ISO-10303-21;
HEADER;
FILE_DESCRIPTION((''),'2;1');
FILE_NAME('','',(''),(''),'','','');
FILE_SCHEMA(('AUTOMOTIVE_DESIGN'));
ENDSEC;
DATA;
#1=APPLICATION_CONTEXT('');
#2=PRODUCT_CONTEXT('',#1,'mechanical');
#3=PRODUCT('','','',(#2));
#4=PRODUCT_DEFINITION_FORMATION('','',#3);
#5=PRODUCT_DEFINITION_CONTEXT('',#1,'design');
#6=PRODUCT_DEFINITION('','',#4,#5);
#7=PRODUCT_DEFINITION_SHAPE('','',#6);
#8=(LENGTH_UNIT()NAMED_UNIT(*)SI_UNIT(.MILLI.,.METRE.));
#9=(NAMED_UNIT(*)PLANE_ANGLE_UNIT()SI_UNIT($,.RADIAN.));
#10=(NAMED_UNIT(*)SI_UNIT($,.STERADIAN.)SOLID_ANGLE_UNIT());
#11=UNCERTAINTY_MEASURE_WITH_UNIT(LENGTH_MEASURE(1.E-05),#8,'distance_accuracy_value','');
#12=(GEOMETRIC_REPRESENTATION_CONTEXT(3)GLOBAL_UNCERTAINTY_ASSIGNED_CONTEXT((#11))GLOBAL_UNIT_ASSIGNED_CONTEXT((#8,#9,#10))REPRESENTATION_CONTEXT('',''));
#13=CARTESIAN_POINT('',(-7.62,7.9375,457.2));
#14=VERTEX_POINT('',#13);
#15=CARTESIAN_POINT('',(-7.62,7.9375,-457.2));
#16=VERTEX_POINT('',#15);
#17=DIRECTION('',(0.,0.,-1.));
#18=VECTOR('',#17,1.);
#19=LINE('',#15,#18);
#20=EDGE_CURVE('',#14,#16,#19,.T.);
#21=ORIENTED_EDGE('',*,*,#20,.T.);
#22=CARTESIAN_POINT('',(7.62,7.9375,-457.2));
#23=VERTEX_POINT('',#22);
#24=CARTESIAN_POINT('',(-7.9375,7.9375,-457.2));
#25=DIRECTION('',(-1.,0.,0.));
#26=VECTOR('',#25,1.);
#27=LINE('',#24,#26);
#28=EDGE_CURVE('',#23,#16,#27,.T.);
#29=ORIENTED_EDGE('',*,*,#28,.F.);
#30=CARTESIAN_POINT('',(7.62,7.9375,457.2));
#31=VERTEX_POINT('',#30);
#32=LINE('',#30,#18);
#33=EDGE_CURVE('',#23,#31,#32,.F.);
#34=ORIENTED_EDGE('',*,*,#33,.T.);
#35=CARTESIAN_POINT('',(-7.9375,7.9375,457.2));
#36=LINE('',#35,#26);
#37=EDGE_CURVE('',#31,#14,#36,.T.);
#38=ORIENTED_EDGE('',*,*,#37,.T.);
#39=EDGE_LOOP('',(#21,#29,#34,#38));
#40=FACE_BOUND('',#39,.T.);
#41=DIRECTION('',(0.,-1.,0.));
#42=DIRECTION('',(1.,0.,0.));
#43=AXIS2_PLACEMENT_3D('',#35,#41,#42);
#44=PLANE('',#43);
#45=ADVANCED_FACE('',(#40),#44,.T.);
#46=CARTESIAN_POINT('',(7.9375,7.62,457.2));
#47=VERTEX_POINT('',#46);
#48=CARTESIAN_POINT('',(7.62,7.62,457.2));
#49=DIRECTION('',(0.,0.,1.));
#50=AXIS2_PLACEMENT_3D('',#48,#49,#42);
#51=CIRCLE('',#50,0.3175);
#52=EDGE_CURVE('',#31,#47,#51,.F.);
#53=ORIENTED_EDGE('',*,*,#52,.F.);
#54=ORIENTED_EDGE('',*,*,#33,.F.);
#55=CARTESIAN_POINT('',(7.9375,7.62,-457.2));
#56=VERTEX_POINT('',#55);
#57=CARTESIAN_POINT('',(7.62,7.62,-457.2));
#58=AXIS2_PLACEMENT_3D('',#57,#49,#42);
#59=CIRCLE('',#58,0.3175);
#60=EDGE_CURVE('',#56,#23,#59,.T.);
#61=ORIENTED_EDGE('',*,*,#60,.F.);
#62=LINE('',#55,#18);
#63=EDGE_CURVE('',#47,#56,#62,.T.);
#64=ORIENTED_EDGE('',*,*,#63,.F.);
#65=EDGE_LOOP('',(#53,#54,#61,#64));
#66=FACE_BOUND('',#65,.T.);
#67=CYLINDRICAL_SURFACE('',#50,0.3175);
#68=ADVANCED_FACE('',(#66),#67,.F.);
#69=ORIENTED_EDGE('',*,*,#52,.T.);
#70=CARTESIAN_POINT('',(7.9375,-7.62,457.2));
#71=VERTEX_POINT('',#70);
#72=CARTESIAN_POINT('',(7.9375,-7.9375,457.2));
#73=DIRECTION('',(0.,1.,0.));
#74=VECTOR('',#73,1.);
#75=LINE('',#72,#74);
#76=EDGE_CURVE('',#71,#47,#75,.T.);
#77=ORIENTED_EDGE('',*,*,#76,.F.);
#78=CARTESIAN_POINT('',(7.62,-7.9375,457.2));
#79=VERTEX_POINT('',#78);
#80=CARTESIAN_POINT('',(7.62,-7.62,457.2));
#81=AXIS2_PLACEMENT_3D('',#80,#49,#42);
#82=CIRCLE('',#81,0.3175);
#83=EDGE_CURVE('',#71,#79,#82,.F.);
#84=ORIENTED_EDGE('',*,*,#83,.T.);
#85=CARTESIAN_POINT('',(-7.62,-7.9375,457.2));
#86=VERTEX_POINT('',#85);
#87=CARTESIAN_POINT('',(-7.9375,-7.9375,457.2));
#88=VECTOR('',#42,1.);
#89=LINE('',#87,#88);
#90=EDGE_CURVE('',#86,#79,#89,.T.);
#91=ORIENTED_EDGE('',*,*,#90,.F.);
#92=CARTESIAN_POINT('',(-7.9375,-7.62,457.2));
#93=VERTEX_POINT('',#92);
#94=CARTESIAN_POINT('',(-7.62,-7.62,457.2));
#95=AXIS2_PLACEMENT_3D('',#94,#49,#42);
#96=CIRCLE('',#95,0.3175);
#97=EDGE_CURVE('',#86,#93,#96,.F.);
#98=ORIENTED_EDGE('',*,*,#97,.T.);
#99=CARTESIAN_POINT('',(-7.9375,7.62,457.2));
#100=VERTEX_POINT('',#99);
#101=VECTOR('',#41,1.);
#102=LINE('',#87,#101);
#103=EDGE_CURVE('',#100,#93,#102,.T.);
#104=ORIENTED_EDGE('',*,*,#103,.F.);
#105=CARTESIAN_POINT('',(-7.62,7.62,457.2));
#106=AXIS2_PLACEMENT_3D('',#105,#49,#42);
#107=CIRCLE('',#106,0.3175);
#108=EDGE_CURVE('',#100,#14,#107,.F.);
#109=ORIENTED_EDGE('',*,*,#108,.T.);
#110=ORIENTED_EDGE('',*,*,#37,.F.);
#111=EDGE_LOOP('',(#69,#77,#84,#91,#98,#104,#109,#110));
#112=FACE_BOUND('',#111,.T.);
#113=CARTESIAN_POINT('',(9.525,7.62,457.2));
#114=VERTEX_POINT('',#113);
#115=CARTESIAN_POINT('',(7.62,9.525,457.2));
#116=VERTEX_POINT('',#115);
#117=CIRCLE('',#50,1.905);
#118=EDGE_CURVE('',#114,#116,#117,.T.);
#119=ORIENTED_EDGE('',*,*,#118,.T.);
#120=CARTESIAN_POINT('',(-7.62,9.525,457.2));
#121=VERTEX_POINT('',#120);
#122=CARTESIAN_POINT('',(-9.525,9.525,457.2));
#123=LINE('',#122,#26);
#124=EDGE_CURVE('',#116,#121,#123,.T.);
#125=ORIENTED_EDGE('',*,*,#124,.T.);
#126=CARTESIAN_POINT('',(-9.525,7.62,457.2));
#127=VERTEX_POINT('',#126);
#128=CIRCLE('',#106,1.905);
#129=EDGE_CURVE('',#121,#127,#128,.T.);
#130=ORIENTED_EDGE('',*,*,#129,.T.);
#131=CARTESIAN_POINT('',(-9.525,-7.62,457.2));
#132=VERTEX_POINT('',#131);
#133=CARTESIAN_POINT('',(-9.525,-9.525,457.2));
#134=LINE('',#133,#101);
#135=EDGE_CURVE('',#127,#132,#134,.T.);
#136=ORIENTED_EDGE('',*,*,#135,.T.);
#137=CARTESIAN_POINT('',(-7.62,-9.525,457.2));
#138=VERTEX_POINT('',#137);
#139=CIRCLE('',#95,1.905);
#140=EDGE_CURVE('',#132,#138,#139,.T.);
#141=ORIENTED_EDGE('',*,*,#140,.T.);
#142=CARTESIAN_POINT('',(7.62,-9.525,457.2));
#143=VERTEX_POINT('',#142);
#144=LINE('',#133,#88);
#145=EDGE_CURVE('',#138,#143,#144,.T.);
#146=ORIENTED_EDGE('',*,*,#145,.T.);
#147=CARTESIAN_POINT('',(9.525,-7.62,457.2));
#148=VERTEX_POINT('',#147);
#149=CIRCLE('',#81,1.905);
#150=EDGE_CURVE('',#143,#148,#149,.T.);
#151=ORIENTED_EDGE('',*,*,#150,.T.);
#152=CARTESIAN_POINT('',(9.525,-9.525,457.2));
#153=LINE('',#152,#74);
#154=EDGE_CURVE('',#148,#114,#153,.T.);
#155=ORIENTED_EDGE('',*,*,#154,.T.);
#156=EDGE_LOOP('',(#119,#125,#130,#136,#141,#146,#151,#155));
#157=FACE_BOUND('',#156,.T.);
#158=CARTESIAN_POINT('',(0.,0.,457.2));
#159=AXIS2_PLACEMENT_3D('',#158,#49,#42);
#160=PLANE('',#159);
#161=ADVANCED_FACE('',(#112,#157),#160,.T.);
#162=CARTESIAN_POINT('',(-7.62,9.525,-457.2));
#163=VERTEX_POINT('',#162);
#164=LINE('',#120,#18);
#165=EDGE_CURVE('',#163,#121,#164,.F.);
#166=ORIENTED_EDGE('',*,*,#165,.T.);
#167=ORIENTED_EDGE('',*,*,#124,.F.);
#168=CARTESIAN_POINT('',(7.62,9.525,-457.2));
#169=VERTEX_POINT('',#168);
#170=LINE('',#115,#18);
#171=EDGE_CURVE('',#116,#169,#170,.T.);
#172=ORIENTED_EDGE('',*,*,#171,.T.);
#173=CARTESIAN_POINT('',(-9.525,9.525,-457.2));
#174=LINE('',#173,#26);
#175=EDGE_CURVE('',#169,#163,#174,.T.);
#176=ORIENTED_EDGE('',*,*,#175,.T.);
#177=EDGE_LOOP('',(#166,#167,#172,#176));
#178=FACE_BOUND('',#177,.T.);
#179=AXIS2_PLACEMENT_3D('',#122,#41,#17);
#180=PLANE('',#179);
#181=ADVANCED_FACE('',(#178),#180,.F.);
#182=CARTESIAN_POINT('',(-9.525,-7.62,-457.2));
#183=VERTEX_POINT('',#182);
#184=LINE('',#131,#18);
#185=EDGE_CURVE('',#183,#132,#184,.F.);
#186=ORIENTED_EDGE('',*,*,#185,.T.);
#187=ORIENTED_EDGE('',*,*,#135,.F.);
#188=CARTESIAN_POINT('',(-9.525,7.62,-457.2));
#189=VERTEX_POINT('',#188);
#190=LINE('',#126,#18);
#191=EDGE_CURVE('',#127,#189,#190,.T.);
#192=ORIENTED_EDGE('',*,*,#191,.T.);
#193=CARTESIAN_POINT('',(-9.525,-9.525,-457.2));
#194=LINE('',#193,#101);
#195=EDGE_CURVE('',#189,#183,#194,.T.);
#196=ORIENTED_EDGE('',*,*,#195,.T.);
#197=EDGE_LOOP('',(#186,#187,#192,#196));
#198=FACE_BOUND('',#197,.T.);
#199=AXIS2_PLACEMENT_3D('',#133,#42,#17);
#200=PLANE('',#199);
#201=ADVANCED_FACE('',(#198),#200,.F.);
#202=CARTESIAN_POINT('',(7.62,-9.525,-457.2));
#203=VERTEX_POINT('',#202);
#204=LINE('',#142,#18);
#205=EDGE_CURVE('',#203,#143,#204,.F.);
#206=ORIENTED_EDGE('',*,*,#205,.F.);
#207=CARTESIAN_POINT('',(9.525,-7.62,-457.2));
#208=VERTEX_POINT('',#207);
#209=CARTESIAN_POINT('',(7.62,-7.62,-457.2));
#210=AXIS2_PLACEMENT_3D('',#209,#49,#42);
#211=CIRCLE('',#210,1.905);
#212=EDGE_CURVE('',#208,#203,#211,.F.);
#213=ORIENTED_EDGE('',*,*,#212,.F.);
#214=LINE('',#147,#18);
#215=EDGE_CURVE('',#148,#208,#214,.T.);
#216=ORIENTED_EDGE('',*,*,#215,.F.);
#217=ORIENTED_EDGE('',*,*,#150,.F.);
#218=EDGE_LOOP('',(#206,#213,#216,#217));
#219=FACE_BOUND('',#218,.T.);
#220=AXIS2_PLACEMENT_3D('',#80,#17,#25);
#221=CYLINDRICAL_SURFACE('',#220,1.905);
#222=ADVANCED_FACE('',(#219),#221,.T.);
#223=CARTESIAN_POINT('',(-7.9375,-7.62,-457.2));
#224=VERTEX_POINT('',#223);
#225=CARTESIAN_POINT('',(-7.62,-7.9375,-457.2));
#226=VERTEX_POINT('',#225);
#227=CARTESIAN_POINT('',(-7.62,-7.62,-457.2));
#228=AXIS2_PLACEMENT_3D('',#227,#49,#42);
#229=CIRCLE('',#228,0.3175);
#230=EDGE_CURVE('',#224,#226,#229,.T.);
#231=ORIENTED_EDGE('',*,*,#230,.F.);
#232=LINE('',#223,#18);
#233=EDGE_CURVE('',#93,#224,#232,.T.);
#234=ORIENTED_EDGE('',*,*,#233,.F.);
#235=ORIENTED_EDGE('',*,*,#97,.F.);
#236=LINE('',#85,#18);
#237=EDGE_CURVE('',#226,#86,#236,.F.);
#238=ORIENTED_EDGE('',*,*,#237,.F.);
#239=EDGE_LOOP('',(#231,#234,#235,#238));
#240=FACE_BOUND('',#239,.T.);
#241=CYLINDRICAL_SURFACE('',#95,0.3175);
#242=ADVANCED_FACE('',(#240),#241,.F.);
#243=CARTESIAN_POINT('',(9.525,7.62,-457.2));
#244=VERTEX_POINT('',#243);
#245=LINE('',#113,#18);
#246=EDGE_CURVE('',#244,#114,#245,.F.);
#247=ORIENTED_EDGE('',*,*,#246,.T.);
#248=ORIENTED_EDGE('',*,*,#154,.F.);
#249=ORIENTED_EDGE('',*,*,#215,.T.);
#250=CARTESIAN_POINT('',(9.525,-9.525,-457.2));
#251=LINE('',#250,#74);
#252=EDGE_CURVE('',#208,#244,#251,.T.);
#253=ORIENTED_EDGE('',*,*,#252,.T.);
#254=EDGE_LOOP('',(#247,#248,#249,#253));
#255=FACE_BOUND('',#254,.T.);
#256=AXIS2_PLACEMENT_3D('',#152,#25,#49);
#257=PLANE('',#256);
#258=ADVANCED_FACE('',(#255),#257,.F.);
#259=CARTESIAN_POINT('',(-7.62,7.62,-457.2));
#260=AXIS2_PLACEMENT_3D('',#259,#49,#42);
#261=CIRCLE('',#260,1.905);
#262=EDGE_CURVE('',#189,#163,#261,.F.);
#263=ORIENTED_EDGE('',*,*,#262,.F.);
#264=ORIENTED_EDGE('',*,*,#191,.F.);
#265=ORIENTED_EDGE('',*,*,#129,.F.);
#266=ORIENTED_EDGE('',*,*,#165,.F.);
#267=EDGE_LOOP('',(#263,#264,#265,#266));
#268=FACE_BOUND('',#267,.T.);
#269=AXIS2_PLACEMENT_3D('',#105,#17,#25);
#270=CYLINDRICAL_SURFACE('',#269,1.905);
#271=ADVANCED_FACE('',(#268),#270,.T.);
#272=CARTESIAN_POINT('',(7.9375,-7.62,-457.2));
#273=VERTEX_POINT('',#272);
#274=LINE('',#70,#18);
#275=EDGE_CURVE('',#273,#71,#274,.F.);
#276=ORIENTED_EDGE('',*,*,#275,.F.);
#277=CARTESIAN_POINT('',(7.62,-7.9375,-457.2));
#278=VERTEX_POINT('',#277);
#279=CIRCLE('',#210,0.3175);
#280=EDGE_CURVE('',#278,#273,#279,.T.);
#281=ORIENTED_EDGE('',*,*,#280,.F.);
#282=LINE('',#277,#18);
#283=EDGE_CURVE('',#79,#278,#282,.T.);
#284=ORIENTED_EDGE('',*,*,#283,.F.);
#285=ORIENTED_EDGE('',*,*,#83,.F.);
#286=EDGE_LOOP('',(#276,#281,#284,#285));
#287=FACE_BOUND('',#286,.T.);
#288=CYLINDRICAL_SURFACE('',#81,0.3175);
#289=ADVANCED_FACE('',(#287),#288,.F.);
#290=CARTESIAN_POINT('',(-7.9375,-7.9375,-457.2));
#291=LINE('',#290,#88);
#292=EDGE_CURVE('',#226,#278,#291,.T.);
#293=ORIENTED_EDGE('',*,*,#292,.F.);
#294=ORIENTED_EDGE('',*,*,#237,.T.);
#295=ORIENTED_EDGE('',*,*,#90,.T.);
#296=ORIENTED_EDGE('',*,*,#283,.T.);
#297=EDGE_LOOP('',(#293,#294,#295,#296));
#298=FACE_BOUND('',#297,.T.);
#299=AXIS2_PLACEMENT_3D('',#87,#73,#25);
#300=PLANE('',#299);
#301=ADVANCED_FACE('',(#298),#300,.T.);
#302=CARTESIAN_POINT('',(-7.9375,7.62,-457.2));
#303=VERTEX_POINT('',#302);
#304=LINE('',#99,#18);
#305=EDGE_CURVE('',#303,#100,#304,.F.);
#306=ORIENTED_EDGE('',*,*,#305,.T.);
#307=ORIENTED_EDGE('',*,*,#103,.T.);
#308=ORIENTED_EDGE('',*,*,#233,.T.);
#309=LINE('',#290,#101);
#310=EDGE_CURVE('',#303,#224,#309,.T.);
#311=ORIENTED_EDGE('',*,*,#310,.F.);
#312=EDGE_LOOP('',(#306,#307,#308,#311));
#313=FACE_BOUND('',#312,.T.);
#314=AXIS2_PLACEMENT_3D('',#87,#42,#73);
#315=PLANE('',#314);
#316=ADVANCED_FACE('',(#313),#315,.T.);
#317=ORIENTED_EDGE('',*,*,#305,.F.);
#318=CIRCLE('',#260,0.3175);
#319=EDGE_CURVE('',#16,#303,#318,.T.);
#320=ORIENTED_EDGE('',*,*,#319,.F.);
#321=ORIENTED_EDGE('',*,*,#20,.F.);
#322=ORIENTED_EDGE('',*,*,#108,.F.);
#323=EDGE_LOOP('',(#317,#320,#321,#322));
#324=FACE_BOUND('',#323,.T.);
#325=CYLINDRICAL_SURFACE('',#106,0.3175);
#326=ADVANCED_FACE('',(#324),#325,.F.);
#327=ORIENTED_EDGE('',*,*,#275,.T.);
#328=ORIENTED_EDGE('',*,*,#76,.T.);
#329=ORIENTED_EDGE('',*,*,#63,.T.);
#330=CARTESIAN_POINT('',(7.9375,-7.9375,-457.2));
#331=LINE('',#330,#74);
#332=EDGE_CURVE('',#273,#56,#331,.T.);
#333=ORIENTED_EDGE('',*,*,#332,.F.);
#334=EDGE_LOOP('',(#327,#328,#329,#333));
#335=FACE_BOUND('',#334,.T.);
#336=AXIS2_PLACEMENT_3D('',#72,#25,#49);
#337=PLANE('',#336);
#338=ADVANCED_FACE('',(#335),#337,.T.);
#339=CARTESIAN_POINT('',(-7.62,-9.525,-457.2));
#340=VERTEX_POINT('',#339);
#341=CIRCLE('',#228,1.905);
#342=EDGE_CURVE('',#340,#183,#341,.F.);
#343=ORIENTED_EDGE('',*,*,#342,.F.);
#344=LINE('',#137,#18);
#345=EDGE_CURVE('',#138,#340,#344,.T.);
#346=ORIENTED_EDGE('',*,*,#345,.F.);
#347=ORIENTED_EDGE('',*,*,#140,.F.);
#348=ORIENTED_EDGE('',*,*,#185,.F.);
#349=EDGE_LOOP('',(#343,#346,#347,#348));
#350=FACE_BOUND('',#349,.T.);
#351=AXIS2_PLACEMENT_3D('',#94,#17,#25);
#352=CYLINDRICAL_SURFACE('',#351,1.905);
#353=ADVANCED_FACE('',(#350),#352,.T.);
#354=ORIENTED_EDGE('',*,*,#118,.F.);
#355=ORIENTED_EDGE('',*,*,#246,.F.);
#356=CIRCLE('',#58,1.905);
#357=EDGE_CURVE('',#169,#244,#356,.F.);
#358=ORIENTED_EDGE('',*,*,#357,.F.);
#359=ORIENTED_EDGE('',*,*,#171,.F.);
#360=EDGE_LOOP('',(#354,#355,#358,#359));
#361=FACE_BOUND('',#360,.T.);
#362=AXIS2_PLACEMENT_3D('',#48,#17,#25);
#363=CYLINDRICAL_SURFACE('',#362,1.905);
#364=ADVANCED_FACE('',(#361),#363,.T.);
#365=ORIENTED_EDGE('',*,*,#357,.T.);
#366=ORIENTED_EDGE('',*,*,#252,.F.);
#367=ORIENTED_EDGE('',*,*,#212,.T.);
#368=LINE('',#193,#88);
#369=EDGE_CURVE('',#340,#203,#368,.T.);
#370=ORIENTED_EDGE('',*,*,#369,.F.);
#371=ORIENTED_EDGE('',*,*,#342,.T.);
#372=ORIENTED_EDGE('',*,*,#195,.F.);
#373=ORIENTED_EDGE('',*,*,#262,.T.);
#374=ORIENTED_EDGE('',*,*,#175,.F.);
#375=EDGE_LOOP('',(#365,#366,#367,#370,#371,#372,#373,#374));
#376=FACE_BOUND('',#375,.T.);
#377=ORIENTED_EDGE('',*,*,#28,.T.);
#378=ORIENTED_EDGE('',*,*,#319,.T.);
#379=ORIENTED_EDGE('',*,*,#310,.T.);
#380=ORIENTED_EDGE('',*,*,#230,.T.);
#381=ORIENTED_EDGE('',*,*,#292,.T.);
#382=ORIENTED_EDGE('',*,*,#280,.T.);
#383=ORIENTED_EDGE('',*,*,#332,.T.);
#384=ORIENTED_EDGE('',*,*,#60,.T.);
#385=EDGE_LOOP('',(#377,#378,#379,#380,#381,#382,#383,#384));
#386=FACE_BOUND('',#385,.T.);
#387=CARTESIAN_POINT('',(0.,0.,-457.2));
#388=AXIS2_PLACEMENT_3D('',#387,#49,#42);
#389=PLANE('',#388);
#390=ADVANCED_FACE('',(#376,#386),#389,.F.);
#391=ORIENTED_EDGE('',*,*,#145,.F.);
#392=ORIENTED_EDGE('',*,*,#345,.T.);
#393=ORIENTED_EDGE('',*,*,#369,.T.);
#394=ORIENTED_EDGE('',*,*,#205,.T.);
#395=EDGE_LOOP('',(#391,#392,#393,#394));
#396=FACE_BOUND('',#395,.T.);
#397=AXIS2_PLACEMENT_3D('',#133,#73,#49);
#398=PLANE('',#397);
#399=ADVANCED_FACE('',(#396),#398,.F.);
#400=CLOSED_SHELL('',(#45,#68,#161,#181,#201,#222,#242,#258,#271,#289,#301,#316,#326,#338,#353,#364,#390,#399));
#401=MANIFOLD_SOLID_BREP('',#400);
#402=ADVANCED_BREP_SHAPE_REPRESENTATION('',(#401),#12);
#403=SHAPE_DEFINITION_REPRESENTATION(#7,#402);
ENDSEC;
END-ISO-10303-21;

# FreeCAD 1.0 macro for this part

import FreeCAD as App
import Part
import Sketcher
Q = App.Units.Quantity


def edges_at(feature, points):
    """Names of the edges that pass closest to the given points."""
    edges = feature.Shape.Edges
    near = lambda p: min(range(len(edges)), key=lambda i: edges[i].distToShape(Part.Vertex(*p))[0])
    return sorted({f"Edge{near(p) + 1}" for p in points})

doc = App.newDocument("Part")
body = doc.addObject("PartDesign::Body", "Body")

sketch1 = body.newObject("Sketcher::SketchObject", "Sketch")
sketch1.AttachmentSupport = (doc.getObject("XY_Plane"), [""])
sketch1.MapMode = "FlatFace"
sketch1.addGeometry([
    Part.LineSegment(App.Vector(-10, 10, 0), App.Vector(-10, -10, 0)),
    Part.LineSegment(App.Vector(-10, -10, 0), App.Vector(10, -10, 0)),
    Part.LineSegment(App.Vector(10, -10, 0), App.Vector(10, 10, 0)),
    Part.LineSegment(App.Vector(10, 10, 0), App.Vector(-10, 10, 0)),
    Part.LineSegment(App.Vector(8, -8, 0), App.Vector(-8, -8, 0)),
    Part.LineSegment(App.Vector(-8, -8, 0), App.Vector(-8, 8, 0)),
    Part.LineSegment(App.Vector(-8, 8, 0), App.Vector(8, 8, 0)),
    Part.LineSegment(App.Vector(8, 8, 0), App.Vector(8, -8, 0)),
], False)
sketch1.addConstraint([
    Sketcher.Constraint("Coincident", 0, 2, 1, 1),
    Sketcher.Constraint("Coincident", 1, 2, 2, 1),
    Sketcher.Constraint("Coincident", 2, 2, 3, 1),
    Sketcher.Constraint("Coincident", 3, 2, 0, 1),
    Sketcher.Constraint("Coincident", 4, 2, 5, 1),
    Sketcher.Constraint("Coincident", 5, 2, 6, 1),
    Sketcher.Constraint("Coincident", 6, 2, 7, 1),
    Sketcher.Constraint("Coincident", 7, 2, 4, 1),
    Sketcher.Constraint("Vertical", 0),
    Sketcher.Constraint("Horizontal", 1),
    Sketcher.Constraint("Vertical", 2),
    Sketcher.Constraint("Horizontal", 3),
    Sketcher.Constraint("Horizontal", 4),
    Sketcher.Constraint("Vertical", 5),
    Sketcher.Constraint("Horizontal", 6),
    Sketcher.Constraint("Vertical", 7),
    Sketcher.Constraint("Symmetric", 0, 2, 2, 2, -1, 1),
    Sketcher.Constraint("Symmetric", 4, 2, 6, 2, -1, 1),
    Sketcher.Constraint("Equal", 3, 0),
    Sketcher.Constraint("Equal", 6, 5),
    Sketcher.Constraint("DistanceX", 1, 1, 1, 2, Q("0.75 in")),
    Sketcher.Constraint("DistanceX", 4, 2, 4, 1, Q("0.625 in")),
])
pad1 = body.newObject("PartDesign::Pad", "Pad")
pad1.Profile = sketch1
pad1.Length = Q("36 in")
pad1.Midplane = True
doc.recompute()

fillet = body.newObject("PartDesign::Fillet", "Fillet")
fillet.Base = (pad1, edges_at(pad1, [
    (-9.525, -9.525, 0),
    (-9.525, 9.525, 0),
    (9.525, 9.525, 0),
    (9.525, -9.525, 0),
]))
fillet.Radius = Q("0.075 in")
doc.recompute()

fillet2 = body.newObject("PartDesign::Fillet", "Fillet001")
fillet2.Base = (fillet, edges_at(fillet, [
    (-7.938, -7.938, 0),
    (7.938, -7.938, 0),
    (7.938, 7.938, 0),
    (-7.938, 7.938, 0),
]))
fillet2.Radius = Q("0.0125 in")

doc.recompute()
